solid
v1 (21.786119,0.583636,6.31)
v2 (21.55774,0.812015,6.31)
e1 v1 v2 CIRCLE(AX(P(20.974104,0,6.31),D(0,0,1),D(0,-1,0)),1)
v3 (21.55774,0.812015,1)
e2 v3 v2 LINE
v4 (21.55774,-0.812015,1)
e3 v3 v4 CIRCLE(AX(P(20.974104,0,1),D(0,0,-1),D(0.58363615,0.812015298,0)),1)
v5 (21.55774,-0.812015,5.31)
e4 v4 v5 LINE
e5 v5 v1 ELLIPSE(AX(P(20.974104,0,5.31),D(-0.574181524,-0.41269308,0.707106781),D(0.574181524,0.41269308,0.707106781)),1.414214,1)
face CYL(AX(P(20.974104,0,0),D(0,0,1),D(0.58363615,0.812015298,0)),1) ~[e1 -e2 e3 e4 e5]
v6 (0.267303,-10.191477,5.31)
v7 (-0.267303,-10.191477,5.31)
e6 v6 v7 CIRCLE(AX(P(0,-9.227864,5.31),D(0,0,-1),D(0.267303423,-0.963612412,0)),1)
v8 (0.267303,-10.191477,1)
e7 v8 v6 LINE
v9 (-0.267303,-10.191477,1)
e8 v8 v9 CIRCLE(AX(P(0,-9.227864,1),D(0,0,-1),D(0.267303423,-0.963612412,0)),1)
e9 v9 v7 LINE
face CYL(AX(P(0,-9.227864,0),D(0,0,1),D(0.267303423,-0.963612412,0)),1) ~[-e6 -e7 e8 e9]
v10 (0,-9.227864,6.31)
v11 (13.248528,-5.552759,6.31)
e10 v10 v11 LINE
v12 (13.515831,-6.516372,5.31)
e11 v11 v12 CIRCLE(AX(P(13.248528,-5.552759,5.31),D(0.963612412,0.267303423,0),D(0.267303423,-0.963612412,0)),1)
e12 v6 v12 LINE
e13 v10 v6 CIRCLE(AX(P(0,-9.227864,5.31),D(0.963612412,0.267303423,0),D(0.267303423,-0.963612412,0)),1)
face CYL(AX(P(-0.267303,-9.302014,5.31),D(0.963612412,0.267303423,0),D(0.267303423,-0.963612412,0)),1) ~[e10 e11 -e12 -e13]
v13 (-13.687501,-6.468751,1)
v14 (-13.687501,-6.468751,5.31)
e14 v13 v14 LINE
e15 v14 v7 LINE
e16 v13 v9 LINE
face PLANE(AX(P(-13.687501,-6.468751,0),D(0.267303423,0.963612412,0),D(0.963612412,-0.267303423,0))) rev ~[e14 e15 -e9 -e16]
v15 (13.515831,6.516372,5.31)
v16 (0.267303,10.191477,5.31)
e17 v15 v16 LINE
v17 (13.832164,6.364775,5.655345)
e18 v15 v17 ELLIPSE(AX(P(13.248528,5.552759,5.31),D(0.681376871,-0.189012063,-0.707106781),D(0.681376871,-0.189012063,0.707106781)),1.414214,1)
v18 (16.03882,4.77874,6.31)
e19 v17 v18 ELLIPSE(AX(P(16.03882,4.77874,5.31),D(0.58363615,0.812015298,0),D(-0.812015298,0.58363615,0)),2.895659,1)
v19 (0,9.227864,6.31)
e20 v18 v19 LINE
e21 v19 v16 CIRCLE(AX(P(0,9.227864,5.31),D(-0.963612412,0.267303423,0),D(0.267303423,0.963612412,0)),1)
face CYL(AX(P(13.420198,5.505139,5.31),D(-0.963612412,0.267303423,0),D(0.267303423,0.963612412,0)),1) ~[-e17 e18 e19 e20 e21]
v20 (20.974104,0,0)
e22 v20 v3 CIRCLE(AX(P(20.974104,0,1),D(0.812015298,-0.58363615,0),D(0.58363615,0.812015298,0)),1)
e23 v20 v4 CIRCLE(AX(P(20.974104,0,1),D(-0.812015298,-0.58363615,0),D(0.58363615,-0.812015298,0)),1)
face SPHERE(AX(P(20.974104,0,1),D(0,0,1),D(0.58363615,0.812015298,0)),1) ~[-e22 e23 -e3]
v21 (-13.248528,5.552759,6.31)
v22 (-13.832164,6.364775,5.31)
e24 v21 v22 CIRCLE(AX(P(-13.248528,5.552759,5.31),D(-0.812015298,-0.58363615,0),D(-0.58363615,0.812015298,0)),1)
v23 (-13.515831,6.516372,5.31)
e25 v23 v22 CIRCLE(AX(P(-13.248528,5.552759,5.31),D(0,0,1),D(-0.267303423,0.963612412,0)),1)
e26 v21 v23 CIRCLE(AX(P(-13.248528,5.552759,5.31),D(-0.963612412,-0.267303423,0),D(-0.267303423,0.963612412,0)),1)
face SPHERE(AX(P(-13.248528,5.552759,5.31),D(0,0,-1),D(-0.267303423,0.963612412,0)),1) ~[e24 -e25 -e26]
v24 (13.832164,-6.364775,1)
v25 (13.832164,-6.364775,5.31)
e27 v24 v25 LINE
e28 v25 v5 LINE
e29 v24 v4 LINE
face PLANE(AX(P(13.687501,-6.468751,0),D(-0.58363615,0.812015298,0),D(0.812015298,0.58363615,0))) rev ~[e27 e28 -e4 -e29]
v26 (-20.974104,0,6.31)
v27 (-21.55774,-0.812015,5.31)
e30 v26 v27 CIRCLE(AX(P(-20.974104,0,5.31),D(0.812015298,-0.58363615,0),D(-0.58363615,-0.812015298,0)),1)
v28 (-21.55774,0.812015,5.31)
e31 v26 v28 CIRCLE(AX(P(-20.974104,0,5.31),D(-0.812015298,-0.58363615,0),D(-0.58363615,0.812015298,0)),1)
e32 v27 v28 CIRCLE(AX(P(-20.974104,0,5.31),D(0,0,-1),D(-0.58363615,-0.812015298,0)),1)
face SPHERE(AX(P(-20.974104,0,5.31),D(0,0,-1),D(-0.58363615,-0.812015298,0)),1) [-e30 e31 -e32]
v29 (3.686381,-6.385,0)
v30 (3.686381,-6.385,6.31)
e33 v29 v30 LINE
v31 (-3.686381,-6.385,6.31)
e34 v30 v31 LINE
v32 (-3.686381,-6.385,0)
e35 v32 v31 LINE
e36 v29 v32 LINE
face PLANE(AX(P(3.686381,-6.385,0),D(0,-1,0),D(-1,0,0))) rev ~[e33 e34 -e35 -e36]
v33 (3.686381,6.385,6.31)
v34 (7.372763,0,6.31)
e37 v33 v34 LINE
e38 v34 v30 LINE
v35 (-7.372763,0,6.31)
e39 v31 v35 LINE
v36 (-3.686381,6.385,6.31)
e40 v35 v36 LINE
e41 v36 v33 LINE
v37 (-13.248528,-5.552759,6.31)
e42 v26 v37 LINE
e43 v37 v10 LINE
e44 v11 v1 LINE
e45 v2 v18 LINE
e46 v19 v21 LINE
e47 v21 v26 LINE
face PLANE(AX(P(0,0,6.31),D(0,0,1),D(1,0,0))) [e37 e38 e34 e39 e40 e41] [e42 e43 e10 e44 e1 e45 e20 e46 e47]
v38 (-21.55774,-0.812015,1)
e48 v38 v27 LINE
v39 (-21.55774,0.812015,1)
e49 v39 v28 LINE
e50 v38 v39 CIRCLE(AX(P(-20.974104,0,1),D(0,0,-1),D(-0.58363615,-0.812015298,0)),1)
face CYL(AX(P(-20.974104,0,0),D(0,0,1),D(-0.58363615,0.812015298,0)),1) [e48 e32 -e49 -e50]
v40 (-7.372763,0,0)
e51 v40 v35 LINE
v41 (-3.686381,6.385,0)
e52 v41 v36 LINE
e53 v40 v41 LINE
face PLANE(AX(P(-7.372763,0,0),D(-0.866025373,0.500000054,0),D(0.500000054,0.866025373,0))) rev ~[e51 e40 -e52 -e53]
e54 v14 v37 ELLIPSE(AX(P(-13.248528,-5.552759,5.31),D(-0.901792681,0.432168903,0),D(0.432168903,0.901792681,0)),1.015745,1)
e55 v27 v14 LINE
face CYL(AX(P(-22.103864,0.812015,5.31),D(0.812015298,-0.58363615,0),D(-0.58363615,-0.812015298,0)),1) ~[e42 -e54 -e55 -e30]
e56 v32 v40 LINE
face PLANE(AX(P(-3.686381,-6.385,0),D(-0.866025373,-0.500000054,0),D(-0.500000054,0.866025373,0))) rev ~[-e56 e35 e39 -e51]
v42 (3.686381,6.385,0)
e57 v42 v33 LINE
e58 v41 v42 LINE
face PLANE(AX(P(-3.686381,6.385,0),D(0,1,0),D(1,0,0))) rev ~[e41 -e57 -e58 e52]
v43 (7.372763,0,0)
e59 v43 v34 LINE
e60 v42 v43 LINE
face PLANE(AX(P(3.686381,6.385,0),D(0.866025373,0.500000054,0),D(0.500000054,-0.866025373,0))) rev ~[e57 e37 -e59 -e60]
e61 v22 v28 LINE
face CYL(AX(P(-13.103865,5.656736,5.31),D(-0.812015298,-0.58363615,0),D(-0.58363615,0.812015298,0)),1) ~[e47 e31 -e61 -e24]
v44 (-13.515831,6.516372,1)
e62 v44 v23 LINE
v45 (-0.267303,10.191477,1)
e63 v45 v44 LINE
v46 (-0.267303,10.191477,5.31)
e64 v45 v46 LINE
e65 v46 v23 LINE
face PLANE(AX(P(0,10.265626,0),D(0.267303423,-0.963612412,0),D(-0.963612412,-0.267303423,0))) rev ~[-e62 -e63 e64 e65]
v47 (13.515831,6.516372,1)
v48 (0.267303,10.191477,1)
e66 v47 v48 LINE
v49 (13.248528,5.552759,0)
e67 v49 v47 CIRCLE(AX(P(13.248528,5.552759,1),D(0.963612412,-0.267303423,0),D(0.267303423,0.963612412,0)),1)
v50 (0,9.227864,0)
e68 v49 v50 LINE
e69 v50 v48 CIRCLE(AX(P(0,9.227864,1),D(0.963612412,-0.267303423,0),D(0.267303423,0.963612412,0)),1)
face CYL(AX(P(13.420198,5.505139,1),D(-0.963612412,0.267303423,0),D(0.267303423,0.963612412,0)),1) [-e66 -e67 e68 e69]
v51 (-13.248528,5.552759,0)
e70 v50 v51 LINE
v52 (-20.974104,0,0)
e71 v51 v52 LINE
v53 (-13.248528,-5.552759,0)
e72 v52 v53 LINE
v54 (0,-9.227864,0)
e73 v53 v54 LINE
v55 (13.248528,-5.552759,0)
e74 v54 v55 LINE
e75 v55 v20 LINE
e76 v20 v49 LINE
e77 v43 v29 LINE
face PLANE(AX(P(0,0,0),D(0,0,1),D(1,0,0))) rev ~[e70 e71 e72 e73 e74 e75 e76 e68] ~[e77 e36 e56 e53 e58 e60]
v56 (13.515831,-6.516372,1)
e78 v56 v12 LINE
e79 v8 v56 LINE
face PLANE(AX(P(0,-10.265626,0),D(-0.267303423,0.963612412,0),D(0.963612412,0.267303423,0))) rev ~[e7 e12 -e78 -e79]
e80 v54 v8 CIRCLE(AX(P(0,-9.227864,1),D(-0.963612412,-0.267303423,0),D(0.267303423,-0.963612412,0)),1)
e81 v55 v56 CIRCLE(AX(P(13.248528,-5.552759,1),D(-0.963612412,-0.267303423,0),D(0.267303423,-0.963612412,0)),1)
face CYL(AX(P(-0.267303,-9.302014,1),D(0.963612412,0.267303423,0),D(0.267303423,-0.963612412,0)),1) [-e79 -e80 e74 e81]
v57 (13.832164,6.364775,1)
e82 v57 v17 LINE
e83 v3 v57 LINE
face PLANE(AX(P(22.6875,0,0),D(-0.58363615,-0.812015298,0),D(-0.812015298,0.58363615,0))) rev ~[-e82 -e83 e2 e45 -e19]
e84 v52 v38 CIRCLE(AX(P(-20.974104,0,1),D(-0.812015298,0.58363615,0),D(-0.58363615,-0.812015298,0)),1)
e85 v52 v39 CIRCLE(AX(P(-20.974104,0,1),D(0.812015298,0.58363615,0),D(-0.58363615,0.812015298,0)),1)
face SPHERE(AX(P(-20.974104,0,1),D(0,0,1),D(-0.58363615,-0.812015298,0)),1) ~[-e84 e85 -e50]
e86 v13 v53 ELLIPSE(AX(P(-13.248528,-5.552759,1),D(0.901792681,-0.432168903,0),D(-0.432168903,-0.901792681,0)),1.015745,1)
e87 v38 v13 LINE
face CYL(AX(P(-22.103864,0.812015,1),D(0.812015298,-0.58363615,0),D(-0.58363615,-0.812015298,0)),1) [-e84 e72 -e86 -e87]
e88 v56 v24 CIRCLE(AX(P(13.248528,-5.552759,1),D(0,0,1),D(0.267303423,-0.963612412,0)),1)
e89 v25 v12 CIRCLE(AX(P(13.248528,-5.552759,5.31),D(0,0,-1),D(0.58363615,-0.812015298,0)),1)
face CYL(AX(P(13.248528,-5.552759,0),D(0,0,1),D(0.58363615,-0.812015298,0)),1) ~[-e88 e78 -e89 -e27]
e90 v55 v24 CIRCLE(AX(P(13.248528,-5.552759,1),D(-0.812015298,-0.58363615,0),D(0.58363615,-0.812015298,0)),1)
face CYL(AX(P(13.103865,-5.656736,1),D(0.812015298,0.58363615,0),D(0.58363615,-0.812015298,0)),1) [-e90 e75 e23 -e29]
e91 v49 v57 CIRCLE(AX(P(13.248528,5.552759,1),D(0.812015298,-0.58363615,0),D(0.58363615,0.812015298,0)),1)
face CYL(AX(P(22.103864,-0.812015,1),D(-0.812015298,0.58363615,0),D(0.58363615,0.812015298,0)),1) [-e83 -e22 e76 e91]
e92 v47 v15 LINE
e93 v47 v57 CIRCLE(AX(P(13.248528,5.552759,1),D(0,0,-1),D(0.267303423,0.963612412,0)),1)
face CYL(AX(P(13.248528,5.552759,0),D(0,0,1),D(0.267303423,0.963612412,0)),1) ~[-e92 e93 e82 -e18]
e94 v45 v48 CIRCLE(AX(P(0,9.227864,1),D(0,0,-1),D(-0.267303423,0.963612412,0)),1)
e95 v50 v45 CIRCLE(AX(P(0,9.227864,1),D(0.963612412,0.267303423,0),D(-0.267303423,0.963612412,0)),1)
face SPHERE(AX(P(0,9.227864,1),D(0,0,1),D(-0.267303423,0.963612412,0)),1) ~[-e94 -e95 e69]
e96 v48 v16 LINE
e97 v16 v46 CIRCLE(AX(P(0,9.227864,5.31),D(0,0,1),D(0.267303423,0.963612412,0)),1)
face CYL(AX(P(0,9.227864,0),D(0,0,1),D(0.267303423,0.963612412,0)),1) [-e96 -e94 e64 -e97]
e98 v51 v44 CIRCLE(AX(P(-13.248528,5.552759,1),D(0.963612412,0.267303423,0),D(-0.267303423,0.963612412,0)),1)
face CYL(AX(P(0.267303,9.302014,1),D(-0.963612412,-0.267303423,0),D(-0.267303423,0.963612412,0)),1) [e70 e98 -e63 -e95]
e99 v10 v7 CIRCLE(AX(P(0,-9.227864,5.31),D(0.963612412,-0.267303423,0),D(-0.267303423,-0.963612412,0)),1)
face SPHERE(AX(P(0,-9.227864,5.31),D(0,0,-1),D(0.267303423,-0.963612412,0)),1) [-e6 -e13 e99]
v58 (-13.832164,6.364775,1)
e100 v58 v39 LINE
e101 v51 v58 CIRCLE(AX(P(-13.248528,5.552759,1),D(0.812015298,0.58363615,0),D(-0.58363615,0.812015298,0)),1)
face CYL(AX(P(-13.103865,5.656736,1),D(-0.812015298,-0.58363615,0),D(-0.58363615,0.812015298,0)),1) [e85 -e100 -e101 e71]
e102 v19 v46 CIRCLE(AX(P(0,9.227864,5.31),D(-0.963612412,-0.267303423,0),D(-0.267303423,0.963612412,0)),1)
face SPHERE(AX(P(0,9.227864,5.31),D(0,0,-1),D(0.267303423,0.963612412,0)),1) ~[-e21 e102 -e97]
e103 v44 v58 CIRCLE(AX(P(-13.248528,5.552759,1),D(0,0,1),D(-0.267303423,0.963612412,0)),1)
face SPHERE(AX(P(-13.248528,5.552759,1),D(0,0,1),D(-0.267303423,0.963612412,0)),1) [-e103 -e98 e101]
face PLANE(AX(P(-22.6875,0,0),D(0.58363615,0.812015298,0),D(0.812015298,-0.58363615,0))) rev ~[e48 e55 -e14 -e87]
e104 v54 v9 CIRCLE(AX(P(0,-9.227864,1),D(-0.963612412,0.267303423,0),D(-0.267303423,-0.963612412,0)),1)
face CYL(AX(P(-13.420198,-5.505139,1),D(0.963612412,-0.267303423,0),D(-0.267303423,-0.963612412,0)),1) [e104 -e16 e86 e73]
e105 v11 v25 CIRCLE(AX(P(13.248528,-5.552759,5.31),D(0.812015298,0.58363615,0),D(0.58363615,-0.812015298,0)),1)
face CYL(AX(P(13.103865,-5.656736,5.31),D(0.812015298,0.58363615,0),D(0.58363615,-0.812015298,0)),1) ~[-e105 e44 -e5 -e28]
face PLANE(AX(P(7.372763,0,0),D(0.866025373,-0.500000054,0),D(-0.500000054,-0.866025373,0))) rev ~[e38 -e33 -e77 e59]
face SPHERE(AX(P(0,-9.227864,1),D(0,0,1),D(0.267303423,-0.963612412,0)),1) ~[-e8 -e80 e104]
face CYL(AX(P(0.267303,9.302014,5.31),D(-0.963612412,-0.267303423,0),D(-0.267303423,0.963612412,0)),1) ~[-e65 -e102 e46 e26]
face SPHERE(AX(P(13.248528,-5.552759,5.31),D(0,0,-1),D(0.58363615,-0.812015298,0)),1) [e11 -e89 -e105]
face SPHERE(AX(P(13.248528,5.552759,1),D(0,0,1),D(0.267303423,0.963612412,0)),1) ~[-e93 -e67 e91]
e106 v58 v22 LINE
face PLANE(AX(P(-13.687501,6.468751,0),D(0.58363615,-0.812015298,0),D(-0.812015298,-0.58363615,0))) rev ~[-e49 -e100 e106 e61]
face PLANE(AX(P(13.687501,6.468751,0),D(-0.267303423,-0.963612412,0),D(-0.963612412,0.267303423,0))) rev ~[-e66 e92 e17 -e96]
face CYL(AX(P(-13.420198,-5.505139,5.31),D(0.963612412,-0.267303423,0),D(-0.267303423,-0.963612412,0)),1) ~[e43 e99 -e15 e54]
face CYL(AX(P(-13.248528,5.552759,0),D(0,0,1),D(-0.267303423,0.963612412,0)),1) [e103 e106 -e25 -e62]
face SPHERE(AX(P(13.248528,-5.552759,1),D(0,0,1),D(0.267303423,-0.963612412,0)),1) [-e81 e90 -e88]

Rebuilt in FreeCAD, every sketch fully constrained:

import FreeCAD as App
import Part
import Sketcher
Q = App.Units.Quantity


def edges_at(feature, points):
    """Names of the edges that pass closest to the given points."""
    edges = feature.Shape.Edges
    near = lambda p: min(range(len(edges)), key=lambda i: edges[i].distToShape(Part.Vertex(*p))[0])
    return sorted({f"Edge{near(p) + 1}" for p in points})


def add_polygon(sketch, points):
    """Adds a closed chain of lines whose ends are joined by coincident constraints."""
    first, n = sketch.GeometryCount, len(points)
    for a, b in zip(points, points[1:] + points[:1]):
        sketch.addGeometry(Part.LineSegment(App.Vector(*a, 0), App.Vector(*b, 0)), False)
    for i in range(n):
        sketch.addConstraint(Sketcher.Constraint("Coincident", first + i, 2, first + (i + 1) % n, 1))

doc = App.newDocument("Part")
body = doc.addObject("PartDesign::Body", "Body")

sketch1 = body.newObject("Sketcher::SketchObject", "Sketch")
sketch1.AttachmentSupport = (doc.getObject("XY_Plane"), [""])
sketch1.MapMode = "FlatFace"
add_polygon(sketch1, [(13.687501, 6.468751), (0, 10.265626), (-13.687501, 6.468751), (-22.6875, 0), (-13.687501, -6.468751), (0, -10.265626), (13.687501, -6.468751), (22.6875, 0)])
add_polygon(sketch1, [(-3.686381, -6.385), (-7.372763, 0), (-3.686381, 6.385), (3.686381, 6.385), (7.372763, 0), (3.686381, -6.385)])
sketch1.addConstraint([
    Sketcher.Constraint("Horizontal", 10),
    Sketcher.Constraint("Horizontal", 13),
    Sketcher.Constraint("Symmetric", 0, 2, 4, 2, -1, 1),
    Sketcher.Constraint("Symmetric", 1, 2, 5, 2, -1, 1),
    Sketcher.Constraint("Symmetric", 2, 2, 6, 2, -1, 1),
    Sketcher.Constraint("Symmetric", 3, 2, 7, 2, -1, 1),
    Sketcher.Constraint("Symmetric", 8, 2, 11, 2, -1, 1),
    Sketcher.Constraint("Symmetric", 9, 2, 12, 2, -1, 1),
    Sketcher.Constraint("Symmetric", 3, 2, 5, 2, -2),
    Sketcher.Constraint("PointOnObject", 0, 2, -2),
    Sketcher.Constraint("PointOnObject", 2, 2, -1),
    Sketcher.Constraint("PointOnObject", 8, 2, -1),
    Sketcher.Constraint("Parallel", 8, 11),
    Sketcher.Constraint("Vertical", 10, 2, 12, 2),
    Sketcher.Constraint("Angle", 8, Q("120.000004 deg")),
    Sketcher.Constraint("DistanceX", 2, 2, 1, 2, 8.999999),
    Sketcher.Constraint("DistanceY", 12, 2, 10, 2, 12.77),
    Sketcher.Constraint("DistanceX", 3, 2, 5, 2, 27.375002),
    Sketcher.Constraint("DistanceX", 10, 1, 10, 2, 7.372762),
    Sketcher.Constraint("DistanceY", -1, 1, 1, 2, 6.468751),
    Sketcher.Constraint("DistanceY", 4, 2, 0, 2, 20.531252),
])
pad1 = body.newObject("PartDesign::Pad", "Pad")
pad1.Profile = sketch1
pad1.Length = 6.31
doc.recompute()

fillet = body.newObject("PartDesign::Fillet", "Fillet")
fillet.Base = (pad1, edges_at(pad1, [
    (-22.688, 0, 3.155),
    (22.688, 0, 3.155),
    (13.688, -6.469, 3.155),
    (0, -10.266, 3.155),
    (-18.188, -3.234, 0),
    (0, 10.266, 3.155),
    (13.688, 6.469, 3.155),
    (-13.688, 6.469, 3.155),
    (-6.844, 8.367, 0),
    (6.844, 8.367, 6.31),
    (6.844, 8.367, 0),
    (18.188, 3.234, 0),
    (18.188, -3.234, 6.31),
    (6.844, -8.367, 6.31),
    (-6.844, -8.367, 6.31),
    (-18.188, -3.234, 6.31),
    (-6.844, 8.367, 6.31),
    (-18.188, 3.234, 6.31),
    (-18.188, 3.234, 0),
    (6.844, -8.367, 0),
    (-6.844, -8.367, 0),
    (18.188, -3.234, 0),
]))
fillet.Radius = 1

doc.recompute()
